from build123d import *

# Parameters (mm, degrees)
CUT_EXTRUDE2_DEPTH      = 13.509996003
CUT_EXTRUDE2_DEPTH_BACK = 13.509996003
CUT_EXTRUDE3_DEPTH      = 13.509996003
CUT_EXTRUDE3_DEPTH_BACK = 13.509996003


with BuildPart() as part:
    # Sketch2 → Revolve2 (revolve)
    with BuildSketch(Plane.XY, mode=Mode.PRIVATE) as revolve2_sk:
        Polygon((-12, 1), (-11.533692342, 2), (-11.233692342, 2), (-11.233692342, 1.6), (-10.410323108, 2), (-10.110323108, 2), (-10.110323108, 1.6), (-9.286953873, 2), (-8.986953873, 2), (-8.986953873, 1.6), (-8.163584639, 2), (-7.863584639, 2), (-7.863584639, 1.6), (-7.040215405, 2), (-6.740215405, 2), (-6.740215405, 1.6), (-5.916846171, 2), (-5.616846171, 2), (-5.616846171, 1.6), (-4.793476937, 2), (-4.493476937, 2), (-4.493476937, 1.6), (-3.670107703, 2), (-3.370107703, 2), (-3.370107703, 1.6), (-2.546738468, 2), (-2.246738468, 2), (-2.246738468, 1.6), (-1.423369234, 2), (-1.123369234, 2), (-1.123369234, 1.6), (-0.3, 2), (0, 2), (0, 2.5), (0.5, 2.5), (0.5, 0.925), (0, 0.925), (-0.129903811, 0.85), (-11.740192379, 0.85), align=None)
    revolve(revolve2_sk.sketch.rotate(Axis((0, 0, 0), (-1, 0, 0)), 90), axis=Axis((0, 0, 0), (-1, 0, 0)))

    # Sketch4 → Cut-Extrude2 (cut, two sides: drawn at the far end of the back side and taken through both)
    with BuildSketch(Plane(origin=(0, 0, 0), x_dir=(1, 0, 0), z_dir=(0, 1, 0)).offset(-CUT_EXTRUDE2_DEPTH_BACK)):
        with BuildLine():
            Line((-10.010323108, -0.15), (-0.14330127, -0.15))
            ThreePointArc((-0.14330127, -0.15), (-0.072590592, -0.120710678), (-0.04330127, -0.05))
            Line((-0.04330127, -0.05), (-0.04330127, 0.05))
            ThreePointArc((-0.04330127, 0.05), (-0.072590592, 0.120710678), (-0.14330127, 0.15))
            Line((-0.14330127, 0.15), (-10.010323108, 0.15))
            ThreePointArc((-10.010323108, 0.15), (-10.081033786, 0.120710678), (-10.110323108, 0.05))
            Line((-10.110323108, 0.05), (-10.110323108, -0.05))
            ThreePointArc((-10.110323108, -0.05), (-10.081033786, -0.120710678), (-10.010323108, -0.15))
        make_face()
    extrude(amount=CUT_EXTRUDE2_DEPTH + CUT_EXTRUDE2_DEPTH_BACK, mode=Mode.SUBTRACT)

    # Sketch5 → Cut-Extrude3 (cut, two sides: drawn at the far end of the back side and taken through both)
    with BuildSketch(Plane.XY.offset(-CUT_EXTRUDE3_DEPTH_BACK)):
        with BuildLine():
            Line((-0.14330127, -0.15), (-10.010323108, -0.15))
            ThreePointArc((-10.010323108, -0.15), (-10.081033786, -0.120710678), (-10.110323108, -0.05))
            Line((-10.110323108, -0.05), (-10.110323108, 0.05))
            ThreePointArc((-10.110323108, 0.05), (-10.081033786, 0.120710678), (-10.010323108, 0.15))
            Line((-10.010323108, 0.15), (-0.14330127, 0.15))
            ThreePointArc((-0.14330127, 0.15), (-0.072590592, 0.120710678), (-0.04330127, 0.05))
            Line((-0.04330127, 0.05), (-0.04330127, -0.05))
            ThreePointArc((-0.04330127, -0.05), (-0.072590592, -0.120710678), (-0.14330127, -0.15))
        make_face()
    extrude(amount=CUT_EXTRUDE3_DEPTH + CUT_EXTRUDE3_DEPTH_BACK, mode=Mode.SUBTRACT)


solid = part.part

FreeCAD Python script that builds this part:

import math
import FreeCAD as App
import Part
import Sketcher

V = App.Vector
Q = App.Units.Quantity

doc = App.newDocument("Part")
params = doc.addObject("Spreadsheet::Sheet", "Params")
for row, (alias, value) in enumerate([
    ("sketch1_width", "0.5 mm"),
    ("sketch1_width2", "0.3 mm"),
    ("sketch1_height", "0.4 mm"),
    ("sketch1_length", "0.3 mm"),
    ("sketch1_length2", "0.15 mm"),
    ("revolution_angle", "360 deg"),
    ("sketch2_radius", "0.1 mm"),
    ("sketch2_height", "0.1 mm"),
    ("sketch3_radius", "0.1 mm"),
    ("sketch3_height", "0.1 mm"),
], start=1):
    params.set(f"A{row}", alias)
    params.set(f"B{row}", "=" + value)
    params.setAlias(f"B{row}", alias)

body = doc.addObject("PartDesign::Body", "Body")

sketch1 = body.newObject("Sketcher::SketchObject", "Sketch")
sketch1.AttachmentSupport = (doc.getObject("XY_Plane"), [""])
sketch1.MapMode = "FlatFace"
sketch1.addGeometry([
    Part.LineSegment(V(-11.533692, 2, 0), V(-12, 1, 0)),
    Part.LineSegment(V(-12, 1, 0), V(-11.740192, 0.85, 0)),
    Part.LineSegment(V(-11.740192, 0.85, 0), V(-0.129904, 0.85, 0)),
    Part.LineSegment(V(-0.129904, 0.85, 0), V(0, 0.925, 0)),
    Part.LineSegment(V(0, 0.925, 0), V(0.5, 0.925, 0)),
    Part.LineSegment(V(0.5, 0.925, 0), V(0.5, 2.5, 0)),
    Part.LineSegment(V(0.5, 2.5, 0), V(0, 2.5, 0)),
    Part.LineSegment(V(0, 2.5, 0), V(0, 2, 0)),
    Part.LineSegment(V(0, 2, 0), V(-0.3, 2, 0)),
    Part.LineSegment(V(-0.3, 2, 0), V(-1.123369, 1.6, 0)),
    Part.LineSegment(V(-1.123369, 1.6, 0), V(-1.123369, 2, 0)),
    Part.LineSegment(V(-1.123369, 2, 0), V(-1.423369, 2, 0)),
    Part.LineSegment(V(-1.423369, 2, 0), V(-2.246738, 1.6, 0)),
    Part.LineSegment(V(-2.246738, 1.6, 0), V(-2.246738, 2, 0)),
    Part.LineSegment(V(-2.246738, 2, 0), V(-2.546738, 2, 0)),
    Part.LineSegment(V(-2.546738, 2, 0), V(-3.370108, 1.6, 0)),
    Part.LineSegment(V(-3.370108, 1.6, 0), V(-3.370108, 2, 0)),
    Part.LineSegment(V(-3.370108, 2, 0), V(-3.670108, 2, 0)),
    Part.LineSegment(V(-3.670108, 2, 0), V(-4.493477, 1.6, 0)),
    Part.LineSegment(V(-4.493477, 1.6, 0), V(-4.493477, 2, 0)),
    Part.LineSegment(V(-4.493477, 2, 0), V(-4.793477, 2, 0)),
    Part.LineSegment(V(-4.793477, 2, 0), V(-5.616846, 1.6, 0)),
    Part.LineSegment(V(-5.616846, 1.6, 0), V(-5.616846, 2, 0)),
    Part.LineSegment(V(-5.616846, 2, 0), V(-5.916846, 2, 0)),
    Part.LineSegment(V(-5.916846, 2, 0), V(-6.740215, 1.6, 0)),
    Part.LineSegment(V(-6.740215, 1.6, 0), V(-6.740215, 2, 0)),
    Part.LineSegment(V(-6.740215, 2, 0), V(-7.040215, 2, 0)),
    Part.LineSegment(V(-7.040215, 2, 0), V(-7.863585, 1.6, 0)),
    Part.LineSegment(V(-7.863585, 1.6, 0), V(-7.863585, 2, 0)),
    Part.LineSegment(V(-7.863585, 2, 0), V(-8.163585, 2, 0)),
    Part.LineSegment(V(-8.163585, 2, 0), V(-8.986954, 1.6, 0)),
    Part.LineSegment(V(-8.986954, 1.6, 0), V(-8.986954, 2, 0)),
    Part.LineSegment(V(-8.986954, 2, 0), V(-9.286954, 2, 0)),
    Part.LineSegment(V(-9.286954, 2, 0), V(-10.110323, 1.6, 0)),
    Part.LineSegment(V(-10.110323, 1.6, 0), V(-10.110323, 2, 0)),
    Part.LineSegment(V(-10.110323, 2, 0), V(-10.410323, 2, 0)),
    Part.LineSegment(V(-10.410323, 2, 0), V(-11.233692, 1.6, 0)),
    Part.LineSegment(V(-11.233692, 1.6, 0), V(-11.233692, 2, 0)),
    Part.LineSegment(V(-11.233692, 2, 0), V(-11.533692, 2, 0)),
], False)
sketch1.addConstraint([
    Sketcher.Constraint("Coincident", 0, 2, 1, 1),
    Sketcher.Constraint("Coincident", 1, 2, 2, 1),
    Sketcher.Constraint("Coincident", 2, 2, 3, 1),
    Sketcher.Constraint("Coincident", 3, 2, 4, 1),
    Sketcher.Constraint("Coincident", 4, 2, 5, 1),
    Sketcher.Constraint("Coincident", 5, 2, 6, 1),
    Sketcher.Constraint("Coincident", 6, 2, 7, 1),
    Sketcher.Constraint("Coincident", 7, 2, 8, 1),
    Sketcher.Constraint("Coincident", 8, 2, 9, 1),
    Sketcher.Constraint("Coincident", 9, 2, 10, 1),
    Sketcher.Constraint("Coincident", 10, 2, 11, 1),
    Sketcher.Constraint("Coincident", 11, 2, 12, 1),
    Sketcher.Constraint("Coincident", 12, 2, 13, 1),
    Sketcher.Constraint("Coincident", 13, 2, 14, 1),
    Sketcher.Constraint("Coincident", 14, 2, 15, 1),
    Sketcher.Constraint("Coincident", 15, 2, 16, 1),
    Sketcher.Constraint("Coincident", 16, 2, 17, 1),
    Sketcher.Constraint("Coincident", 17, 2, 18, 1),
    Sketcher.Constraint("Coincident", 18, 2, 19, 1),
    Sketcher.Constraint("Coincident", 19, 2, 20, 1),
    Sketcher.Constraint("Coincident", 20, 2, 21, 1),
    Sketcher.Constraint("Coincident", 21, 2, 22, 1),
    Sketcher.Constraint("Coincident", 22, 2, 23, 1),
    Sketcher.Constraint("Coincident", 23, 2, 24, 1),
    Sketcher.Constraint("Coincident", 24, 2, 25, 1),
    Sketcher.Constraint("Coincident", 25, 2, 26, 1),
    Sketcher.Constraint("Coincident", 26, 2, 27, 1),
    Sketcher.Constraint("Coincident", 27, 2, 28, 1),
    Sketcher.Constraint("Coincident", 28, 2, 29, 1),
    Sketcher.Constraint("Coincident", 29, 2, 30, 1),
    Sketcher.Constraint("Coincident", 30, 2, 31, 1),
    Sketcher.Constraint("Coincident", 31, 2, 32, 1),
    Sketcher.Constraint("Coincident", 32, 2, 33, 1),
    Sketcher.Constraint("Coincident", 33, 2, 34, 1),
    Sketcher.Constraint("Coincident", 34, 2, 35, 1),
    Sketcher.Constraint("Coincident", 35, 2, 36, 1),
    Sketcher.Constraint("Coincident", 36, 2, 37, 1),
    Sketcher.Constraint("Coincident", 37, 2, 38, 1),
    Sketcher.Constraint("Coincident", 38, 2, 0, 1),
    Sketcher.Constraint("Horizontal", 2),
    Sketcher.Constraint("Horizontal", 4),
    Sketcher.Constraint("Vertical", 5),
    Sketcher.Constraint("Horizontal", 6),
    Sketcher.Constraint("Vertical", 7),
    Sketcher.Constraint("Horizontal", 8),
    Sketcher.Constraint("Vertical", 10),
    Sketcher.Constraint("Horizontal", 11),
    Sketcher.Constraint("Vertical", 13),
    Sketcher.Constraint("Horizontal", 14),
    Sketcher.Constraint("Vertical", 16),
    Sketcher.Constraint("Horizontal", 17),
    Sketcher.Constraint("Vertical", 19),
    Sketcher.Constraint("Horizontal", 20),
    Sketcher.Constraint("Vertical", 22),
    Sketcher.Constraint("Horizontal", 23),
    Sketcher.Constraint("Vertical", 25),
    Sketcher.Constraint("Horizontal", 26),
    Sketcher.Constraint("Vertical", 28),
    Sketcher.Constraint("Horizontal", 29),
    Sketcher.Constraint("Vertical", 31),
    Sketcher.Constraint("Horizontal", 32),
    Sketcher.Constraint("Vertical", 34),
    Sketcher.Constraint("Horizontal", 35),
    Sketcher.Constraint("Vertical", 37),
    Sketcher.Constraint("Horizontal", 38),
    Sketcher.Constraint("PointOnObject", 3, 2, -2),
    Sketcher.Constraint("PointOnObject", 6, 2, -2),
    Sketcher.Constraint("Parallel", 9, 12),
    Sketcher.Constraint("Parallel", 12, 15),
    Sketcher.Constraint("Parallel", 15, 18),
    Sketcher.Constraint("Parallel", 18, 21),
    Sketcher.Constraint("Parallel", 21, 24),
    Sketcher.Constraint("Parallel", 24, 27),
    Sketcher.Constraint("Parallel", 27, 30),
    Sketcher.Constraint("Parallel", 30, 33),
    Sketcher.Constraint("Parallel", 33, 36),
    Sketcher.Constraint("Horizontal", 8, 2, 10, 2),
    Sketcher.Constraint("Horizontal", 9, 2, 12, 2),
    Sketcher.Constraint("Horizontal", 11, 2, 13, 2),
    Sketcher.Constraint("Horizontal", 12, 2, 15, 2),
    Sketcher.Constraint("Horizontal", 14, 2, 16, 2),
    Sketcher.Constraint("Horizontal", 15, 2, 18, 2),
    Sketcher.Constraint("Horizontal", 17, 2, 19, 2),
    Sketcher.Constraint("Horizontal", 18, 2, 21, 2),
    Sketcher.Constraint("Horizontal", 20, 2, 22, 2),
    Sketcher.Constraint("Horizontal", 21, 2, 24, 2),
    Sketcher.Constraint("Horizontal", 23, 2, 25, 2),
    Sketcher.Constraint("Horizontal", 24, 2, 27, 2),
    Sketcher.Constraint("Horizontal", 26, 2, 28, 2),
    Sketcher.Constraint("Horizontal", 27, 2, 30, 2),
    Sketcher.Constraint("Horizontal", 29, 2, 31, 2),
    Sketcher.Constraint("Horizontal", 30, 2, 33, 2),
    Sketcher.Constraint("Horizontal", 32, 2, 34, 2),
    Sketcher.Constraint("Horizontal", 33, 2, 36, 2),
    Sketcher.Constraint("Horizontal", 35, 2, 37, 2),
    Sketcher.Constraint("Equal", 8, 11),
    Sketcher.Constraint("Equal", 11, 14),
    Sketcher.Constraint("Equal", 14, 17),
    Sketcher.Constraint("Equal", 17, 20),
    Sketcher.Constraint("Equal", 20, 23),
    Sketcher.Constraint("Equal", 23, 26),
    Sketcher.Constraint("Equal", 26, 29),
    Sketcher.Constraint("Equal", 29, 32),
    Sketcher.Constraint("Equal", 32, 35),
    Sketcher.Constraint("Equal", 35, 38),
    Sketcher.Constraint("Equal", 6, 7),
    Sketcher.Constraint("Angle", 0, Q("-115 deg")),
    Sketcher.Constraint("Angle", 1, Q("-30 deg")),
    Sketcher.Constraint("Angle", 3, Q("30 deg")),
    Sketcher.Constraint("DistanceX", 4, 1, 4, 2, Q("0.5 mm")),
    Sketcher.Constraint("DistanceX", 8, 2, 8, 1, Q("0.3 mm")),
    Sketcher.Constraint("DistanceY", 10, 1, 10, 2, Q("0.4 mm")),
    Sketcher.Constraint("DistanceX", 0, 2, -1, 1, Q("12 mm")),
    Sketcher.Constraint("DistanceY", -1, 1, 0, 2, Q("1 mm")),
    Sketcher.Constraint("DistanceY", -1, 1, 7, 2, Q("2 mm")),
    Sketcher.Constraint("Distance", 1, Q("0.3 mm")),
    Sketcher.Constraint("Distance", 3, Q("0.15 mm")),
])
sketch1.setExpression("Constraints[109]", "Params.sketch1_width")
sketch1.setExpression("Constraints[110]", "Params.sketch1_width2")
sketch1.setExpression("Constraints[111]", "Params.sketch1_height")
sketch1.setExpression("Constraints[115]", "Params.sketch1_length")
sketch1.setExpression("Constraints[116]", "Params.sketch1_length2")
revolution = body.newObject("PartDesign::Revolution", "Revolution")
revolution.Profile = sketch1
revolution.ReferenceAxis = (sketch1, ["H_Axis"])
revolution.setExpression("Angle", "Params.revolution_angle")

sketch2 = body.newObject("Sketcher::SketchObject", "Sketch001")
sketch2.AttachmentSupport = (doc.getObject("XZ_Plane"), [""])
sketch2.MapMode = "FlatFace"
sketch2.addGeometry([
    Part.LineSegment(V(-10.010323, 0.15, 0), V(-0.143301, 0.15, 0)),
    Part.ArcOfCircle(Part.Circle(V(-0.143301, 0.05, 0), V(0, 0, 1), 0.1), math.radians(0), math.radians(90)),
    Part.LineSegment(V(-0.043301, 0.05, 0), V(-0.043301, -0.05, 0)),
    Part.ArcOfCircle(Part.Circle(V(-0.143301, -0.05, 0), V(0, 0, 1), 0.1), math.radians(-90), math.radians(0)),
    Part.LineSegment(V(-0.143301, -0.15, 0), V(-10.010323, -0.15, 0)),
    Part.ArcOfCircle(Part.Circle(V(-10.010323, -0.05, 0), V(0, 0, 1), 0.1), math.radians(180), math.radians(270)),
    Part.LineSegment(V(-10.110323, -0.05, 0), V(-10.110323, 0.05, 0)),
    Part.ArcOfCircle(Part.Circle(V(-10.010323, 0.05, 0), V(0, 0, 1), 0.1), math.radians(90), math.radians(180)),
], False)
sketch2.addConstraint([
    Sketcher.Constraint("Tangent", 0, 2, 1, 2),
    Sketcher.Constraint("Tangent", 1, 1, 2, 1),
    Sketcher.Constraint("Tangent", 2, 2, 3, 2),
    Sketcher.Constraint("Tangent", 3, 1, 4, 1),
    Sketcher.Constraint("Tangent", 4, 2, 5, 2),
    Sketcher.Constraint("Tangent", 5, 1, 6, 1),
    Sketcher.Constraint("Tangent", 6, 2, 7, 2),
    Sketcher.Constraint("Tangent", 7, 1, 0, 1),
    Sketcher.Constraint("Horizontal", 0),
    Sketcher.Constraint("Vertical", 2),
    Sketcher.Constraint("Horizontal", 4),
    Sketcher.Constraint("Vertical", 6),
    Sketcher.Constraint("Equal", 1, 3),
    Sketcher.Constraint("Equal", 3, 5),
    Sketcher.Constraint("Equal", 5, 7),
    Sketcher.Constraint("Radius", 1, Q("0.1 mm")),
    Sketcher.Constraint("DistanceY", 2, 2, 2, 1, Q("0.1 mm")),
    Sketcher.Constraint("DistanceY", -1, 1, 1, 3, Q("0.05 mm")),
    Sketcher.Constraint("DistanceX", 0, 1, 0, 2, Q("9.867022 mm")),
    Sketcher.Constraint("DistanceX", 1, 3, -1, 1, Q("0.143301 mm")),
])
sketch2.setExpression("Constraints[15]", "Params.sketch2_radius")
sketch2.setExpression("Constraints[16]", "Params.sketch2_height")
pocket1 = body.newObject("PartDesign::Pocket", "Pocket")
pocket1.Profile = sketch2
pocket1.Type = "ThroughAll"
pocket1.Midplane = True

sketch3 = body.newObject("Sketcher::SketchObject", "Sketch002")
sketch3.AttachmentSupport = (doc.getObject("XY_Plane"), [""])
sketch3.MapMode = "FlatFace"
sketch3.addGeometry([
    Part.LineSegment(V(-10.010323, -0.15, 0), V(-0.143301, -0.15, 0)),
    Part.ArcOfCircle(Part.Circle(V(-0.143301, -0.05, 0), V(0, 0, 1), 0.1), math.radians(-90), math.radians(0)),
    Part.LineSegment(V(-0.043301, -0.05, 0), V(-0.043301, 0.05, 0)),
    Part.ArcOfCircle(Part.Circle(V(-0.143301, 0.05, 0), V(0, 0, 1), 0.1), math.radians(0), math.radians(90)),
    Part.LineSegment(V(-0.143301, 0.15, 0), V(-10.010323, 0.15, 0)),
    Part.ArcOfCircle(Part.Circle(V(-10.010323, 0.05, 0), V(0, 0, 1), 0.1), math.radians(90), math.radians(180)),
    Part.LineSegment(V(-10.110323, 0.05, 0), V(-10.110323, -0.05, 0)),
    Part.ArcOfCircle(Part.Circle(V(-10.010323, -0.05, 0), V(0, 0, 1), 0.1), math.radians(180), math.radians(270)),
], False)
sketch3.addConstraint([
    Sketcher.Constraint("Tangent", 0, 2, 1, 1),
    Sketcher.Constraint("Tangent", 1, 2, 2, 1),
    Sketcher.Constraint("Tangent", 2, 2, 3, 1),
    Sketcher.Constraint("Tangent", 3, 2, 4, 1),
    Sketcher.Constraint("Tangent", 4, 2, 5, 1),
    Sketcher.Constraint("Tangent", 5, 2, 6, 1),
    Sketcher.Constraint("Tangent", 6, 2, 7, 1),
    Sketcher.Constraint("Tangent", 7, 2, 0, 1),
    Sketcher.Constraint("Horizontal", 0),
    Sketcher.Constraint("Vertical", 2),
    Sketcher.Constraint("Horizontal", 4),
    Sketcher.Constraint("Vertical", 6),
    Sketcher.Constraint("Equal", 1, 3),
    Sketcher.Constraint("Equal", 3, 5),
    Sketcher.Constraint("Equal", 5, 7),
    Sketcher.Constraint("Radius", 1, Q("0.1 mm")),
    Sketcher.Constraint("DistanceY", 2, 1, 2, 2, Q("0.1 mm")),
    Sketcher.Constraint("DistanceY", 1, 3, -1, 1, Q("0.05 mm")),
    Sketcher.Constraint("DistanceX", 0, 1, 0, 2, Q("9.867022 mm")),
    Sketcher.Constraint("DistanceX", 1, 3, -1, 1, Q("0.143301 mm")),
])
sketch3.setExpression("Constraints[15]", "Params.sketch3_radius")
sketch3.setExpression("Constraints[16]", "Params.sketch3_height")
pocket2 = body.newObject("PartDesign::Pocket", "Pocket001")
pocket2.Profile = sketch3
pocket2.Type = "ThroughAll"
pocket2.Midplane = True

doc.recompute()
